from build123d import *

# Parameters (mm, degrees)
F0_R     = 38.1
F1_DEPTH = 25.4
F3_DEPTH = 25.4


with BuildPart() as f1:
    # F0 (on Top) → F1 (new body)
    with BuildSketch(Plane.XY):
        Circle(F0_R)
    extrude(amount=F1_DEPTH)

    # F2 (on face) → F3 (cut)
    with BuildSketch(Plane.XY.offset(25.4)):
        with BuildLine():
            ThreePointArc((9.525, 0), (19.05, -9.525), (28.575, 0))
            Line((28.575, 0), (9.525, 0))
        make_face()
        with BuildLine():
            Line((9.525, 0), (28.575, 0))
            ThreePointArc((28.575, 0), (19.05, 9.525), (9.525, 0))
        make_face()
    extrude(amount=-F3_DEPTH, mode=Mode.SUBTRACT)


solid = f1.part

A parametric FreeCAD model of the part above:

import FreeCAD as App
import Part
import Sketcher

V = App.Vector
Q = App.Units.Quantity

doc = App.newDocument("Part")
params = doc.addObject("Spreadsheet::Sheet", "Params")
for row, (alias, value) in enumerate([
    ("sketch1_diameter", "3 in"),
    ("pad1_length", "1 in"),
    ("sketch2_diameter", "0.75 in"),
    ("pocket1_length", "1 in"),
], start=1):
    params.set(f"A{row}", alias)
    params.set(f"B{row}", "=" + value)
    params.setAlias(f"B{row}", alias)

body = doc.addObject("PartDesign::Body", "Body")

sketch1 = doc.addObject("Sketcher::SketchObject", "Sketch")
body.addObject(sketch1)
sketch1.AttachmentSupport = (doc.XY_Plane, [""])
sketch1.MapMode = "FlatFace"
sketch1.addGeometry(Part.Circle(V(0, 0, 0), V(0, 0, 1), 38.1), False)
sketch1.addConstraint([
    Sketcher.Constraint("Coincident", 0, 3, -1, 1),
    Sketcher.Constraint("Diameter", 0, Q("3 in")),
])
sketch1.setExpression("Constraints[1]", "Params.sketch1_diameter")
pad1 = doc.addObject("PartDesign::Pad", "Pad")
body.addObject(pad1)
pad1.Profile = sketch1
pad1.setExpression("Length", "Params.pad1_length")

sketch2 = doc.addObject("Sketcher::SketchObject", "Sketch001")
body.addObject(sketch2)
sketch2.AttachmentSupport = (doc.XY_Plane, [""])
sketch2.MapMode = "FlatFace"
sketch2.AttachmentOffset = App.Placement(V(0, 0, 1 * 25.4), App.Rotation())
sketch2.addGeometry(Part.Circle(V(19.05, 0, 0), V(0, 0, 1), 9.525), False)
sketch2.addConstraint([
    Sketcher.Constraint("PointOnObject", 0, 3, -1),
    Sketcher.Constraint("Diameter", 0, Q("0.75 in")),
    Sketcher.Constraint("DistanceX", -1, 1, 0, 3, Q("0.75 in")),
])
sketch2.setExpression("Constraints[1]", "Params.sketch2_diameter")
pocket1 = doc.addObject("PartDesign::Pocket", "Pocket")
body.addObject(pocket1)
pocket1.Profile = sketch2
pocket1.setExpression("Length", "Params.pocket1_length")

doc.recompute()
